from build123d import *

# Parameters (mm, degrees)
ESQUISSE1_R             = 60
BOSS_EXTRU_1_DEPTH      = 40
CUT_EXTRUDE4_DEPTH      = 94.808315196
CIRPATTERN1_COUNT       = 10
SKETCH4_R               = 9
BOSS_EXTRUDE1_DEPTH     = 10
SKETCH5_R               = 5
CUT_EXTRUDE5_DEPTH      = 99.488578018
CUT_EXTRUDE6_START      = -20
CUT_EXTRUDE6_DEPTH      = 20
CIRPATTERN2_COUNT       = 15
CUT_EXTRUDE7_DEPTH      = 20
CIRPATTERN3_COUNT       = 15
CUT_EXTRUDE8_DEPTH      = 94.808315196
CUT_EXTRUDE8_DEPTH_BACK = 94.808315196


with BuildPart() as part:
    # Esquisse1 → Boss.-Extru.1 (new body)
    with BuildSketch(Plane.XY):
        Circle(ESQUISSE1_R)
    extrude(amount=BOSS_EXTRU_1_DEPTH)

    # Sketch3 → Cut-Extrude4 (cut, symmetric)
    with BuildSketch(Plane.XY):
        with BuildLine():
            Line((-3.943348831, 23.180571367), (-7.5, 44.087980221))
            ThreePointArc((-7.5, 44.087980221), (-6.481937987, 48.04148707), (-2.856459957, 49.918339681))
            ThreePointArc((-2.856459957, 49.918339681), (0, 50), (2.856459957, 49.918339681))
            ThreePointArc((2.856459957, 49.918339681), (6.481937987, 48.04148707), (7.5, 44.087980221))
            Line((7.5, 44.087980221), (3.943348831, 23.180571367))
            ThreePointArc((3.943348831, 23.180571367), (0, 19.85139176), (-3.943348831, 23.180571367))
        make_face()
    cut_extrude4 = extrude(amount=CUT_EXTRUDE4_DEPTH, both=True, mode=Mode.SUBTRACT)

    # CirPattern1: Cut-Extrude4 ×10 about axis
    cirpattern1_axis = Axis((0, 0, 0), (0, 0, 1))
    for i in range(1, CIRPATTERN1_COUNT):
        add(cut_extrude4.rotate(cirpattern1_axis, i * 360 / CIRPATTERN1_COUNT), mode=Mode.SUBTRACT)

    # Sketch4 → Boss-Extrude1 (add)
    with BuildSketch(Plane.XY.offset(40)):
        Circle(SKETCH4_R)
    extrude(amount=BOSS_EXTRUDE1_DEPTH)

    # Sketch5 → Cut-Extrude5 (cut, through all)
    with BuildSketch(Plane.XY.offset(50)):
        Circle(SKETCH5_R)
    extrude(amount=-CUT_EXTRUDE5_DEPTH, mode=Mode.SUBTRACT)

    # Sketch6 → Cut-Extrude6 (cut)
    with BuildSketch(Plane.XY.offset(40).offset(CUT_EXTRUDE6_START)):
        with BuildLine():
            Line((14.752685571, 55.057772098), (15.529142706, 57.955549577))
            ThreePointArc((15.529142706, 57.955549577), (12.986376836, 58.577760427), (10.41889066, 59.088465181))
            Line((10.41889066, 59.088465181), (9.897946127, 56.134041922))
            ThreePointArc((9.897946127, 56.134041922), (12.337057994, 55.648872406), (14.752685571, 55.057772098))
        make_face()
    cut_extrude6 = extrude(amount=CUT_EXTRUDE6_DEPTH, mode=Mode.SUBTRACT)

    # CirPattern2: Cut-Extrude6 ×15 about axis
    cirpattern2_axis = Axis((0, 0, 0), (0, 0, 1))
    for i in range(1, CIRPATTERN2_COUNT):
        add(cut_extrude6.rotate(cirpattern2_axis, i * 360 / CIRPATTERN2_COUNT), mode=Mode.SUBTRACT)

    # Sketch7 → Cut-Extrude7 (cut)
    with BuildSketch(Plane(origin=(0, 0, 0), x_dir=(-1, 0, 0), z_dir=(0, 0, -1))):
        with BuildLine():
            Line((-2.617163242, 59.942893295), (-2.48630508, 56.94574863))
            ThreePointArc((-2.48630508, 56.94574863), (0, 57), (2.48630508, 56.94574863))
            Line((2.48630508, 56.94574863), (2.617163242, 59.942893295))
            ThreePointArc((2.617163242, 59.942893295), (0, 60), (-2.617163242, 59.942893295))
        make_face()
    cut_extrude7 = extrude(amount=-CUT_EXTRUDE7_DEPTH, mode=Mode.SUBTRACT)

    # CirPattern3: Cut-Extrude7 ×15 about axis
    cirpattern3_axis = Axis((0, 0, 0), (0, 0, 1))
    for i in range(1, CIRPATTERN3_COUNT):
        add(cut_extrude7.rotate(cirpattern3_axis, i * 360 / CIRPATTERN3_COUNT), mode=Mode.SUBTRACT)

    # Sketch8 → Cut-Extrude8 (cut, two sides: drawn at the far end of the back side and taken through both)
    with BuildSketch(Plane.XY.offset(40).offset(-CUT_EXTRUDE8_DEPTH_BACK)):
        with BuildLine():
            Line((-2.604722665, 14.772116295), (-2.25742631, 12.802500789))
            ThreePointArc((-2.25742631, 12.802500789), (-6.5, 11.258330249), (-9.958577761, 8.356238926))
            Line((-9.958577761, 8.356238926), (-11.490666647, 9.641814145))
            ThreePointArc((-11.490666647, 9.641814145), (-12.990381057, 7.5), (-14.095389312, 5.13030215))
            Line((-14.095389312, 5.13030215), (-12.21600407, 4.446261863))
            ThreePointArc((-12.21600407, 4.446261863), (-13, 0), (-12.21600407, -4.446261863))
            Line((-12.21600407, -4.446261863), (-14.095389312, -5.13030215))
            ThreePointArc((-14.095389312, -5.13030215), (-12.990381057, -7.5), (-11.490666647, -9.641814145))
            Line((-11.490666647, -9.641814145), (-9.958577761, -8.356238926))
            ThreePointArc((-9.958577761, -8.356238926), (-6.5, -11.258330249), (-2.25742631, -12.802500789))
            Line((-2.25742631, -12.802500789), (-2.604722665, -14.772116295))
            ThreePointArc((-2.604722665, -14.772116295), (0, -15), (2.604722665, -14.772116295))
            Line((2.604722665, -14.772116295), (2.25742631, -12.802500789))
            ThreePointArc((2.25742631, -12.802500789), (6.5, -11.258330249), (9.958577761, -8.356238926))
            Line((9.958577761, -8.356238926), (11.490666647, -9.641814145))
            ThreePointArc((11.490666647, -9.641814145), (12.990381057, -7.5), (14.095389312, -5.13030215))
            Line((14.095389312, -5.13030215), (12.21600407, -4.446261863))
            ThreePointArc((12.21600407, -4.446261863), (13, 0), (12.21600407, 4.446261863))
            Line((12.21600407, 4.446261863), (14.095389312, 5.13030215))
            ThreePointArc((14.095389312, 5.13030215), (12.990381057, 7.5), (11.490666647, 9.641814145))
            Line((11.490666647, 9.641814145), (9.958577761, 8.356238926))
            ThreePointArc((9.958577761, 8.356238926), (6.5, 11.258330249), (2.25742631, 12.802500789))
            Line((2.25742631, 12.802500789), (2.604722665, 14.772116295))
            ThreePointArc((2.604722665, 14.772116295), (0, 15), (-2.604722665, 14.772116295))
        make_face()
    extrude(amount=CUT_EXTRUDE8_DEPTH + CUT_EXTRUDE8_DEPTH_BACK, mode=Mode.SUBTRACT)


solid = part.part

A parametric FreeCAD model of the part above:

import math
import FreeCAD as App
import Part
import Sketcher
from FreeCAD import Vector
Q = App.Units.Quantity

doc = App.newDocument("Part")
params = doc.addObject("Spreadsheet::Sheet", "Params")
for row, (alias, value) in enumerate([
    ("sketch1_diameter", "120 mm"),
    ("pad1_length", "40 mm"),
    ("sketch2_radius", "4 mm"),
    ("sketch2_radius2", "5 mm"),
    ("sketch2_radius3", "50 mm"),
    ("pocket1_length", "189.61663 mm"),
    ("sketch3_diameter", "18 mm"),
    ("pad2_length", "10 mm"),
    ("sketch4_diameter", "10 mm"),
    ("sketch5_radius", "60 mm"),
    ("sketch5_radius2", "57 mm"),
    ("pocket3_length", "20 mm"),
    ("sketch6_radius", "57 mm"),
    ("sketch6_radius2", "60 mm"),
    ("pocket4_length", "20 mm"),
    ("sketch7_radius", "13 mm"),
    ("sketch7_radius2", "15 mm"),
], start=1):
    params.set(f"A{row}", alias)
    params.set(f"B{row}", "=" + value)
    params.setAlias(f"B{row}", alias)

body = doc.addObject("PartDesign::Body", "Body")

sketch1 = doc.addObject("Sketcher::SketchObject", "Sketch")
body.addObject(sketch1)
sketch1.AttachmentSupport = (doc.XY_Plane, [""])
sketch1.MapMode = "FlatFace"
sketch1.addGeometry(Part.Circle(Vector(0, 0, 0), Vector(0, 0, 1), 60), False)
sketch1.addConstraint([
    Sketcher.Constraint("Coincident", 0, 3, -1, 1),
    Sketcher.Constraint("Diameter", 0, 120.0),
])
sketch1.setExpression("Constraints[1]", "Params.sketch1_diameter")
pad1 = doc.addObject("PartDesign::Pad", "Pad")
body.addObject(pad1)
pad1.Profile = sketch1
pad1.setExpression("Length", "Params.pad1_length")

sketch2 = doc.addObject("Sketcher::SketchObject", "Sketch001")
body.addObject(sketch2)
sketch2.AttachmentSupport = (doc.XY_Plane, [""])
sketch2.MapMode = "FlatFace"
sketch2.addGeometry([
    Part.LineSegment(Vector(-7.5, 44.1, 0), Vector(-3.9, 23.2, 0)),
    Part.ArcOfCircle(Part.Circle(Vector(0, 23.9, 0), Vector(0, 0, 1), 4), math.radians(-170), math.radians(-10)),
    Part.LineSegment(Vector(3.9, 23.2, 0), Vector(7.5, 44.1, 0)),
    Part.ArcOfCircle(Part.Circle(Vector(2.6, 44.9, 0), Vector(0, 0, 1), 5), math.radians(-10), math.radians(87)),
    Part.ArcOfCircle(Part.Circle(Vector(0, 0, 0), Vector(0, 0, 1), 50), math.radians(86.72), math.radians(93.28)),
    Part.ArcOfCircle(Part.Circle(Vector(-2.6, 44.9, 0), Vector(0, 0, 1), 5), math.radians(93), math.radians(190)),
], False)
sketch2.addConstraint([
    Sketcher.Constraint("Tangent", 0, 2, 1, 1),
    Sketcher.Constraint("Tangent", 1, 2, 2, 1),
    Sketcher.Constraint("Tangent", 2, 2, 3, 1),
    Sketcher.Constraint("Tangent", 3, 2, 4, 1),
    Sketcher.Constraint("Tangent", 4, 2, 5, 1),
    Sketcher.Constraint("Tangent", 5, 2, 0, 1),
    Sketcher.Constraint("Coincident", 4, 3, -1, 1),
    Sketcher.Constraint("Equal", 3, 5),
    Sketcher.Constraint("Symmetric", 0, 2, 1, 2, -2),
    Sketcher.Constraint("Radius", 1, 4.0),
    Sketcher.Constraint("Radius", 3, 5.0),
    Sketcher.Constraint("Radius", 4, 50.0),
    Sketcher.Constraint("DistanceX", 5, 2, 2, 2, 15.0),
    Sketcher.Constraint("Distance", 0, 21.20777),
])
sketch2.setExpression("Constraints[9]", "Params.sketch2_radius")
sketch2.setExpression("Constraints[10]", "Params.sketch2_radius2")
sketch2.setExpression("Constraints[11]", "Params.sketch2_radius3")
pocket1 = doc.addObject("PartDesign::Pocket", "Pocket")
body.addObject(pocket1)
pocket1.Profile = sketch2
pocket1.setExpression("Length", "Params.pocket1_length")
pocket1.Midplane = True
doc.recompute()

polarpattern = doc.addObject("PartDesign::PolarPattern", "PolarPattern")
body.addObject(polarpattern)
polarpattern.Originals = [pocket1]
polarpattern.Axis = (doc.Z_Axis, [""])
polarpattern.Angle = 360
polarpattern.Occurrences = 10
body.Tip = polarpattern

sketch3 = doc.addObject("Sketcher::SketchObject", "Sketch002")
body.addObject(sketch3)
sketch3.AttachmentSupport = (doc.XY_Plane, [""])
sketch3.MapMode = "FlatFace"
sketch3.AttachmentOffset = App.Placement(Vector(0, 0, 40), App.Rotation())
sketch3.addGeometry(Part.Circle(Vector(0, 0, 0), Vector(0, 0, 1), 9), False)
sketch3.addConstraint([
    Sketcher.Constraint("Coincident", 0, 3, -1, 1),
    Sketcher.Constraint("Diameter", 0, 18.0),
])
sketch3.setExpression("Constraints[1]", "Params.sketch3_diameter")
pad2 = doc.addObject("PartDesign::Pad", "Pad001")
body.addObject(pad2)
pad2.Profile = sketch3
pad2.setExpression("Length", "Params.pad2_length")

sketch4 = doc.addObject("Sketcher::SketchObject", "Sketch003")
body.addObject(sketch4)
sketch4.AttachmentSupport = (doc.XY_Plane, [""])
sketch4.MapMode = "FlatFace"
sketch4.AttachmentOffset = App.Placement(Vector(0, 0, 50), App.Rotation())
sketch4.addGeometry(Part.Circle(Vector(0, 0, 0), Vector(0, 0, 1), 5), False)
sketch4.addConstraint([
    Sketcher.Constraint("Coincident", 0, 3, -1, 1),
    Sketcher.Constraint("Diameter", 0, 10.0),
])
sketch4.setExpression("Constraints[1]", "Params.sketch4_diameter")
pocket2 = doc.addObject("PartDesign::Pocket", "Pocket001")
body.addObject(pocket2)
pocket2.Profile = sketch4
pocket2.Type = "ThroughAll"

sketch5 = doc.addObject("Sketcher::SketchObject", "Sketch004")
body.addObject(sketch5)
sketch5.AttachmentSupport = (doc.XY_Plane, [""])
sketch5.MapMode = "FlatFace"
sketch5.AttachmentOffset = App.Placement(Vector(0, 0, 20), App.Rotation())
sketch5.addGeometry([
    Part.LineSegment(Vector(14.8, 55.1, 0), Vector(15.5, 58, 0)),
    Part.ArcOfCircle(Part.Circle(Vector(0, 0, 0), Vector(0, 0, 1), 60), math.radians(75), math.radians(80)),
    Part.LineSegment(Vector(10.4, 59.1, 0), Vector(9.9, 56.1, 0)),
    Part.ArcOfCircle(Part.Circle(Vector(0, 0, 0), Vector(0, 0, 1), 57), math.radians(75), math.radians(80)),
], False)
sketch5.addConstraint([
    Sketcher.Constraint("Coincident", 0, 2, 1, 1),
    Sketcher.Constraint("Coincident", 1, 2, 2, 1),
    Sketcher.Constraint("Coincident", 2, 2, 3, 2),
    Sketcher.Constraint("Coincident", 3, 1, 0, 1),
    Sketcher.Constraint("Coincident", 1, 3, -1, 1),
    Sketcher.Constraint("Coincident", 3, 3, -1, 1),
    Sketcher.Constraint("Radius", 1, 60.0),
    Sketcher.Constraint("Radius", 3, 57.0),
    Sketcher.Constraint("Angle", 0, Q("75 deg")),
    Sketcher.Constraint("Angle", 2, Q("-100 deg")),
    Sketcher.Constraint("DistanceY", -1, 1, 0, 2, 57.95555),
    Sketcher.Constraint("DistanceX", -1, 1, 1, 2, 10.418891),
])
sketch5.setExpression("Constraints[6]", "Params.sketch5_radius")
sketch5.setExpression("Constraints[7]", "Params.sketch5_radius2")
pocket3 = doc.addObject("PartDesign::Pocket", "Pocket002")
body.addObject(pocket3)
pocket3.Profile = sketch5
pocket3.setExpression("Length", "Params.pocket3_length")
pocket3.Reversed = True
doc.recompute()

polarpattern2 = doc.addObject("PartDesign::PolarPattern", "PolarPattern001")
body.addObject(polarpattern2)
polarpattern2.Originals = [pocket3]
polarpattern2.Axis = (doc.Z_Axis, [""])
polarpattern2.Angle = 360
polarpattern2.Occurrences = 15
body.Tip = polarpattern2

sketch6 = doc.addObject("Sketcher::SketchObject", "Sketch005")
body.addObject(sketch6)
sketch6.AttachmentSupport = (doc.XY_Plane, [""])
sketch6.MapMode = "FlatFace"
sketch6.addGeometry([
    Part.LineSegment(Vector(2.6, 59.9, 0), Vector(2.5, 56.9, 0)),
    Part.ArcOfCircle(Part.Circle(Vector(0, 0, 0), Vector(0, 0, 1), 57), math.radians(87.5), math.radians(92.5)),
    Part.LineSegment(Vector(-2.5, 56.9, 0), Vector(-2.6, 59.9, 0)),
    Part.ArcOfCircle(Part.Circle(Vector(0, 0, 0), Vector(0, 0, 1), 60), math.radians(87.5), math.radians(92.5)),
], False)
sketch6.addConstraint([
    Sketcher.Constraint("Coincident", 0, 2, 1, 1),
    Sketcher.Constraint("Coincident", 1, 2, 2, 1),
    Sketcher.Constraint("Coincident", 2, 2, 3, 2),
    Sketcher.Constraint("Coincident", 3, 1, 0, 1),
    Sketcher.Constraint("Coincident", 1, 3, -1, 1),
    Sketcher.Constraint("Coincident", 3, 3, -1, 1),
    Sketcher.Constraint("Horizontal", 0, 2, 1, 2),
    Sketcher.Constraint("Horizontal", 2, 2, 3, 1),
    Sketcher.Constraint("Radius", 1, 57.0),
    Sketcher.Constraint("Radius", 3, 60.0),
    Sketcher.Constraint("Angle", 0, Q("-92.5 deg")),
    Sketcher.Constraint("DistanceY", -1, 1, 0, 2, 56.945749),
])
sketch6.setExpression("Constraints[8]", "Params.sketch6_radius")
sketch6.setExpression("Constraints[9]", "Params.sketch6_radius2")
pocket4 = doc.addObject("PartDesign::Pocket", "Pocket003")
body.addObject(pocket4)
pocket4.Profile = sketch6
pocket4.setExpression("Length", "Params.pocket4_length")
pocket4.Reversed = True
doc.recompute()

polarpattern3 = doc.addObject("PartDesign::PolarPattern", "PolarPattern002")
body.addObject(polarpattern3)
polarpattern3.Originals = [pocket4]
polarpattern3.Axis = (doc.Z_Axis, [""])
polarpattern3.Angle = 360
polarpattern3.Occurrences = 15
body.Tip = polarpattern3

sketch7 = doc.addObject("Sketcher::SketchObject", "Sketch006")
body.addObject(sketch7)
sketch7.AttachmentSupport = (doc.XY_Plane, [""])
sketch7.MapMode = "FlatFace"
sketch7.AttachmentOffset = App.Placement(Vector(0, 0, 40), App.Rotation())
sketch7.addGeometry([
    Part.LineSegment(Vector(-2.6, 14.8, 0), Vector(-2.3, 12.8, 0)),
    Part.ArcOfCircle(Part.Circle(Vector(0, 0, 0), Vector(0, 0, 1), 13), math.radians(100), math.radians(140)),
    Part.LineSegment(Vector(-10, 8.4, 0), Vector(-11.5, 9.6, 0)),
    Part.ArcOfCircle(Part.Circle(Vector(0, 0, 0), Vector(0, 0, 1), 15), math.radians(140), math.radians(160)),
    Part.LineSegment(Vector(-14.1, 5.1, 0), Vector(-12.2, 4.4, 0)),
    Part.ArcOfCircle(Part.Circle(Vector(0, 0, 0), Vector(0, 0, 1), 13), math.radians(160), math.radians(200)),
    Part.LineSegment(Vector(-12.2, -4.4, 0), Vector(-14.1, -5.1, 0)),
    Part.ArcOfCircle(Part.Circle(Vector(0, 0, 0), Vector(0, 0, 1), 15), math.radians(-160), math.radians(-140)),
    Part.LineSegment(Vector(-11.5, -9.6, 0), Vector(-10, -8.4, 0)),
    Part.ArcOfCircle(Part.Circle(Vector(0, 0, 0), Vector(0, 0, 1), 13), math.radians(-140), math.radians(-100)),
    Part.LineSegment(Vector(-2.3, -12.8, 0), Vector(-2.6, -14.8, 0)),
    Part.ArcOfCircle(Part.Circle(Vector(0, 0, 0), Vector(0, 0, 1), 15), math.radians(-100), math.radians(-80)),
    Part.LineSegment(Vector(2.6, -14.8, 0), Vector(2.3, -12.8, 0)),
    Part.ArcOfCircle(Part.Circle(Vector(0, 0, 0), Vector(0, 0, 1), 13), math.radians(-80), math.radians(-40)),
    Part.LineSegment(Vector(10, -8.4, 0), Vector(11.5, -9.6, 0)),
    Part.ArcOfCircle(Part.Circle(Vector(0, 0, 0), Vector(0, 0, 1), 15), math.radians(-40), math.radians(-20)),
    Part.LineSegment(Vector(14.1, -5.1, 0), Vector(12.2, -4.4, 0)),
    Part.ArcOfCircle(Part.Circle(Vector(0, 0, 0), Vector(0, 0, 1), 13), math.radians(-20), math.radians(20)),
    Part.LineSegment(Vector(12.2, 4.4, 0), Vector(14.1, 5.1, 0)),
    Part.ArcOfCircle(Part.Circle(Vector(0, 0, 0), Vector(0, 0, 1), 15), math.radians(20), math.radians(40)),
    Part.LineSegment(Vector(11.5, 9.6, 0), Vector(10, 8.4, 0)),
    Part.ArcOfCircle(Part.Circle(Vector(0, 0, 0), Vector(0, 0, 1), 13), math.radians(40), math.radians(80)),
    Part.LineSegment(Vector(2.3, 12.8, 0), Vector(2.6, 14.8, 0)),
    Part.ArcOfCircle(Part.Circle(Vector(0, 0, 0), Vector(0, 0, 1), 15), math.radians(80), math.radians(100)),
], False)
sketch7.addConstraint([
    Sketcher.Constraint("Coincident", 0, 2, 1, 1),
    Sketcher.Constraint("Coincident", 1, 2, 2, 1),
    Sketcher.Constraint("Coincident", 2, 2, 3, 1),
    Sketcher.Constraint("Coincident", 3, 2, 4, 1),
    Sketcher.Constraint("Coincident", 4, 2, 5, 1),
    Sketcher.Constraint("Coincident", 5, 2, 6, 1),
    Sketcher.Constraint("Coincident", 6, 2, 7, 1),
    Sketcher.Constraint("Coincident", 7, 2, 8, 1),
    Sketcher.Constraint("Coincident", 8, 2, 9, 1),
    Sketcher.Constraint("Coincident", 9, 2, 10, 1),
    Sketcher.Constraint("Coincident", 10, 2, 11, 1),
    Sketcher.Constraint("Coincident", 11, 2, 12, 1),
    Sketcher.Constraint("Coincident", 12, 2, 13, 1),
    Sketcher.Constraint("Coincident", 13, 2, 14, 1),
    Sketcher.Constraint("Coincident", 14, 2, 15, 1),
    Sketcher.Constraint("Coincident", 15, 2, 16, 1),
    Sketcher.Constraint("Coincident", 16, 2, 17, 1),
    Sketcher.Constraint("Coincident", 17, 2, 18, 1),
    Sketcher.Constraint("Coincident", 18, 2, 19, 1),
    Sketcher.Constraint("Coincident", 19, 2, 20, 1),
    Sketcher.Constraint("Coincident", 20, 2, 21, 1),
    Sketcher.Constraint("Coincident", 21, 2, 22, 1),
    Sketcher.Constraint("Coincident", 22, 2, 23, 1),
    Sketcher.Constraint("Coincident", 23, 2, 0, 1),
    Sketcher.Constraint("Coincident", 1, 3, -1, 1),
    Sketcher.Constraint("Coincident", 3, 3, -1, 1),
    Sketcher.Constraint("Coincident", 5, 3, -1, 1),
    Sketcher.Constraint("Coincident", 7, 3, -1, 1),
    Sketcher.Constraint("Coincident", 9, 3, -1, 1),
    Sketcher.Constraint("Coincident", 11, 3, -1, 1),
    Sketcher.Constraint("Coincident", 13, 3, -1, 1),
    Sketcher.Constraint("Coincident", 15, 3, -1, 1),
    Sketcher.Constraint("Coincident", 17, 3, -1, 1),
    Sketcher.Constraint("Coincident", 19, 3, -1, 1),
    Sketcher.Constraint("Coincident", 21, 3, -1, 1),
    Sketcher.Constraint("Coincident", 23, 3, -1, 1),
    Sketcher.Constraint("Equal", 1, 5),
    Sketcher.Constraint("Equal", 3, 7),
    Sketcher.Constraint("Equal", 5, 9),
    Sketcher.Constraint("Equal", 7, 11),
    Sketcher.Constraint("Equal", 9, 13),
    Sketcher.Constraint("Equal", 11, 15),
    Sketcher.Constraint("Equal", 13, 17),
    Sketcher.Constraint("Equal", 15, 19),
    Sketcher.Constraint("Equal", 17, 21),
    Sketcher.Constraint("Equal", 19, 23),
    Sketcher.Constraint("Parallel", 0, 12),
    Sketcher.Constraint("Parallel", 2, 14),
    Sketcher.Constraint("Parallel", 4, 16),
    Sketcher.Constraint("Parallel", 6, 18),
    Sketcher.Constraint("Parallel", 8, 20),
    Sketcher.Constraint("Parallel", 10, 22),
    Sketcher.Constraint("Horizontal", 10, 2, 11, 2),
    Sketcher.Constraint("Horizontal", 9, 2, 12, 2),
    Sketcher.Constraint("Horizontal", 8, 2, 13, 2),
    Sketcher.Constraint("Horizontal", 7, 2, 14, 2),
    Sketcher.Constraint("Horizontal", 6, 2, 15, 2),
    Sketcher.Constraint("Horizontal", 5, 2, 16, 2),
    Sketcher.Constraint("Horizontal", 4, 2, 17, 2),
    Sketcher.Constraint("Horizontal", 2, 2, 19, 2),
    Sketcher.Constraint("Horizontal", 0, 2, 21, 2),
    Sketcher.Constraint("Vertical", 4, 2, 5, 2),
    Sketcher.Constraint("Vertical", 2, 2, 7, 2),
    Sketcher.Constraint("Vertical", 0, 2, 9, 2),
    Sketcher.Constraint("Radius", 1, 13.0),
    Sketcher.Constraint("Radius", 3, 15.0),
    Sketcher.Constraint("Angle", 0, Q("-80 deg")),
    Sketcher.Constraint("Angle", 2, Q("140 deg")),
    Sketcher.Constraint("Angle", 4, Q("-20 deg")),
    Sketcher.Constraint("DistanceY", -1, 1, 0, 2, 12.802501),
    Sketcher.Constraint("DistanceY", 3, 2, 0, 2, 7.672199),
    Sketcher.Constraint("DistanceX", 8, 2, 11, 2, 12.5633),
])
sketch7.setExpression("Constraints[64]", "Params.sketch7_radius")
sketch7.setExpression("Constraints[65]", "Params.sketch7_radius2")
pocket5 = doc.addObject("PartDesign::Pocket", "Pocket004")
body.addObject(pocket5)
pocket5.Profile = sketch7
pocket5.Type = "ThroughAll"
pocket5.Midplane = True

doc.recompute()
